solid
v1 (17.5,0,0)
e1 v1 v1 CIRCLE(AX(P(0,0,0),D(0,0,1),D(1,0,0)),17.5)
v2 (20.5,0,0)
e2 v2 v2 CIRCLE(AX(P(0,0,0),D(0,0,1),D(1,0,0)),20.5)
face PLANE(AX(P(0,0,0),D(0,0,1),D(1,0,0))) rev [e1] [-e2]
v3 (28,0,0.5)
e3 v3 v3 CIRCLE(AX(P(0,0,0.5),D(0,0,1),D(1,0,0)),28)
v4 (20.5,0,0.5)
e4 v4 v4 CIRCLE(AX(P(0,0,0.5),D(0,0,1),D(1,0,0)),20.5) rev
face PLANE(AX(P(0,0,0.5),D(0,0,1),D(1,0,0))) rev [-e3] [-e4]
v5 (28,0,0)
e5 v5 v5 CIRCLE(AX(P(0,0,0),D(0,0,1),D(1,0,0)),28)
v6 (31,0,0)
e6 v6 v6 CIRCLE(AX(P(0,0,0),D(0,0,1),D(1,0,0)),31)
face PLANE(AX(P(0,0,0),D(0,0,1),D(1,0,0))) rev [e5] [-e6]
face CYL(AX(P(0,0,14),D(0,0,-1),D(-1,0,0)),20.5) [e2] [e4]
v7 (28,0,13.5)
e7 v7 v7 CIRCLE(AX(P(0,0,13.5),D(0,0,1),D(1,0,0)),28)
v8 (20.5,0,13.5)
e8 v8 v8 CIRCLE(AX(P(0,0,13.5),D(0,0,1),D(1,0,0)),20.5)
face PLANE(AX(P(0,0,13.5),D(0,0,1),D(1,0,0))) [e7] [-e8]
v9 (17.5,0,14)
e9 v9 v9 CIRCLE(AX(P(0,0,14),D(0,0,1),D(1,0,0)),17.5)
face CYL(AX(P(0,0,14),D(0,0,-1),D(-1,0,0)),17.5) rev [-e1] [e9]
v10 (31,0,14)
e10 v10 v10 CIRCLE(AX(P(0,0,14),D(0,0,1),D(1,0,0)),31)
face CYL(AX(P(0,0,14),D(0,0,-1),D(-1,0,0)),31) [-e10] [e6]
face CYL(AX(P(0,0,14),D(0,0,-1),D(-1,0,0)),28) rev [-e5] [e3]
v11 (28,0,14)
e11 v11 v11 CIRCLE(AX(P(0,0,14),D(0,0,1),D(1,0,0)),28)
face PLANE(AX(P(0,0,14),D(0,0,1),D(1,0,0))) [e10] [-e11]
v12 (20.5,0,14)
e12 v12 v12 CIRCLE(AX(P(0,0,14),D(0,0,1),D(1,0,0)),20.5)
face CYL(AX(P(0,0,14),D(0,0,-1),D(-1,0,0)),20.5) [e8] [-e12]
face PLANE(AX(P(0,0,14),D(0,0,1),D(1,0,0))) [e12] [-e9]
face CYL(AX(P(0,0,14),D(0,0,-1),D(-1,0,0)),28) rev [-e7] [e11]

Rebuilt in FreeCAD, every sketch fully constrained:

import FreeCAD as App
import Part
import Sketcher

V = App.Vector
Q = App.Units.Quantity

doc = App.newDocument("Part")
body = doc.addObject("PartDesign::Body", "Body")

# Sketch on XY plane
sketch1 = doc.addObject("Sketcher::SketchObject", "Sketch")
body.addObject(sketch1)
sketch1.AttachmentSupport = (doc.XY_Plane, [""])
sketch1.MapMode = "FlatFace"
sketch1.addGeometry([
    Part.Circle(V(0, 0, 0), V(0, 0, 1), 31),
    Part.Circle(V(0, 0, 0), V(0, 0, 1), 28),
], False)
sketch1.addConstraint([
    Sketcher.Constraint("Coincident", 0, 3, -1, 1),
    Sketcher.Constraint("Coincident", 1, 3, -1, 1),
    Sketcher.Constraint("Diameter", 0, Q("62 mm")),
    Sketcher.Constraint("Diameter", 1, Q("56 mm")),
])
pad1 = doc.addObject("PartDesign::Pad", "Pad")
body.addObject(pad1)
pad1.Profile = sketch1
pad1.Length = 14
body2 = doc.addObject("PartDesign::Body", "Body001")

# Sketch on XY plane
sketch2 = doc.addObject("Sketcher::SketchObject", "Sketch001")
body2.addObject(sketch2)
sketch2.AttachmentSupport = (doc.getObject("XY_Plane001"), [""])
sketch2.MapMode = "FlatFace"
sketch2.addGeometry([
    Part.Circle(V(0, 0, 0), V(0, 0, 1), 20),
    Part.Circle(V(0, 0, 0), V(0, 0, 1), 18),
], False)
sketch2.addConstraint([
    Sketcher.Constraint("Coincident", 0, 3, -1, 1),
    Sketcher.Constraint("Coincident", 1, 3, -1, 1),
    Sketcher.Constraint("Diameter", 0, Q("41 mm")),
    Sketcher.Constraint("Diameter", 1, Q("35 mm")),
])
pad2 = doc.addObject("PartDesign::Pad", "Pad001")
body2.addObject(pad2)
pad2.Profile = sketch2
pad2.Length = 14
body.AllowCompound = True
doc.recompute()

boolean = doc.addObject("PartDesign::Boolean", "Boolean")
body.addObject(boolean)
boolean.Type = "Fuse"
boolean.addObjects([body2])

# Sketch on XY plane
sketch3 = doc.addObject("Sketcher::SketchObject", "Sketch002")
body.addObject(sketch3)
sketch3.AttachmentSupport = (doc.XY_Plane, [""])
sketch3.MapMode = "FlatFace"
sketch3.AttachmentOffset = App.Placement(V(0, 0, 0.5), App.Rotation())
sketch3.addGeometry([
    Part.Circle(V(0, 0, 0), V(0, 0, 1), 28),
    Part.Circle(V(0, 0, 0), V(0, 0, 1), 20),
], False)
sketch3.addConstraint([
    Sketcher.Constraint("Coincident", 0, 3, -1, 1),
    Sketcher.Constraint("Coincident", 1, 3, -1, 1),
    Sketcher.Constraint("Diameter", 0, Q("56 mm")),
    Sketcher.Constraint("Diameter", 1, Q("41 mm")),
])
pad3 = doc.addObject("PartDesign::Pad", "Pad002")
body.addObject(pad3)
pad3.Profile = sketch3
pad3.Length = 13

doc.recompute()
